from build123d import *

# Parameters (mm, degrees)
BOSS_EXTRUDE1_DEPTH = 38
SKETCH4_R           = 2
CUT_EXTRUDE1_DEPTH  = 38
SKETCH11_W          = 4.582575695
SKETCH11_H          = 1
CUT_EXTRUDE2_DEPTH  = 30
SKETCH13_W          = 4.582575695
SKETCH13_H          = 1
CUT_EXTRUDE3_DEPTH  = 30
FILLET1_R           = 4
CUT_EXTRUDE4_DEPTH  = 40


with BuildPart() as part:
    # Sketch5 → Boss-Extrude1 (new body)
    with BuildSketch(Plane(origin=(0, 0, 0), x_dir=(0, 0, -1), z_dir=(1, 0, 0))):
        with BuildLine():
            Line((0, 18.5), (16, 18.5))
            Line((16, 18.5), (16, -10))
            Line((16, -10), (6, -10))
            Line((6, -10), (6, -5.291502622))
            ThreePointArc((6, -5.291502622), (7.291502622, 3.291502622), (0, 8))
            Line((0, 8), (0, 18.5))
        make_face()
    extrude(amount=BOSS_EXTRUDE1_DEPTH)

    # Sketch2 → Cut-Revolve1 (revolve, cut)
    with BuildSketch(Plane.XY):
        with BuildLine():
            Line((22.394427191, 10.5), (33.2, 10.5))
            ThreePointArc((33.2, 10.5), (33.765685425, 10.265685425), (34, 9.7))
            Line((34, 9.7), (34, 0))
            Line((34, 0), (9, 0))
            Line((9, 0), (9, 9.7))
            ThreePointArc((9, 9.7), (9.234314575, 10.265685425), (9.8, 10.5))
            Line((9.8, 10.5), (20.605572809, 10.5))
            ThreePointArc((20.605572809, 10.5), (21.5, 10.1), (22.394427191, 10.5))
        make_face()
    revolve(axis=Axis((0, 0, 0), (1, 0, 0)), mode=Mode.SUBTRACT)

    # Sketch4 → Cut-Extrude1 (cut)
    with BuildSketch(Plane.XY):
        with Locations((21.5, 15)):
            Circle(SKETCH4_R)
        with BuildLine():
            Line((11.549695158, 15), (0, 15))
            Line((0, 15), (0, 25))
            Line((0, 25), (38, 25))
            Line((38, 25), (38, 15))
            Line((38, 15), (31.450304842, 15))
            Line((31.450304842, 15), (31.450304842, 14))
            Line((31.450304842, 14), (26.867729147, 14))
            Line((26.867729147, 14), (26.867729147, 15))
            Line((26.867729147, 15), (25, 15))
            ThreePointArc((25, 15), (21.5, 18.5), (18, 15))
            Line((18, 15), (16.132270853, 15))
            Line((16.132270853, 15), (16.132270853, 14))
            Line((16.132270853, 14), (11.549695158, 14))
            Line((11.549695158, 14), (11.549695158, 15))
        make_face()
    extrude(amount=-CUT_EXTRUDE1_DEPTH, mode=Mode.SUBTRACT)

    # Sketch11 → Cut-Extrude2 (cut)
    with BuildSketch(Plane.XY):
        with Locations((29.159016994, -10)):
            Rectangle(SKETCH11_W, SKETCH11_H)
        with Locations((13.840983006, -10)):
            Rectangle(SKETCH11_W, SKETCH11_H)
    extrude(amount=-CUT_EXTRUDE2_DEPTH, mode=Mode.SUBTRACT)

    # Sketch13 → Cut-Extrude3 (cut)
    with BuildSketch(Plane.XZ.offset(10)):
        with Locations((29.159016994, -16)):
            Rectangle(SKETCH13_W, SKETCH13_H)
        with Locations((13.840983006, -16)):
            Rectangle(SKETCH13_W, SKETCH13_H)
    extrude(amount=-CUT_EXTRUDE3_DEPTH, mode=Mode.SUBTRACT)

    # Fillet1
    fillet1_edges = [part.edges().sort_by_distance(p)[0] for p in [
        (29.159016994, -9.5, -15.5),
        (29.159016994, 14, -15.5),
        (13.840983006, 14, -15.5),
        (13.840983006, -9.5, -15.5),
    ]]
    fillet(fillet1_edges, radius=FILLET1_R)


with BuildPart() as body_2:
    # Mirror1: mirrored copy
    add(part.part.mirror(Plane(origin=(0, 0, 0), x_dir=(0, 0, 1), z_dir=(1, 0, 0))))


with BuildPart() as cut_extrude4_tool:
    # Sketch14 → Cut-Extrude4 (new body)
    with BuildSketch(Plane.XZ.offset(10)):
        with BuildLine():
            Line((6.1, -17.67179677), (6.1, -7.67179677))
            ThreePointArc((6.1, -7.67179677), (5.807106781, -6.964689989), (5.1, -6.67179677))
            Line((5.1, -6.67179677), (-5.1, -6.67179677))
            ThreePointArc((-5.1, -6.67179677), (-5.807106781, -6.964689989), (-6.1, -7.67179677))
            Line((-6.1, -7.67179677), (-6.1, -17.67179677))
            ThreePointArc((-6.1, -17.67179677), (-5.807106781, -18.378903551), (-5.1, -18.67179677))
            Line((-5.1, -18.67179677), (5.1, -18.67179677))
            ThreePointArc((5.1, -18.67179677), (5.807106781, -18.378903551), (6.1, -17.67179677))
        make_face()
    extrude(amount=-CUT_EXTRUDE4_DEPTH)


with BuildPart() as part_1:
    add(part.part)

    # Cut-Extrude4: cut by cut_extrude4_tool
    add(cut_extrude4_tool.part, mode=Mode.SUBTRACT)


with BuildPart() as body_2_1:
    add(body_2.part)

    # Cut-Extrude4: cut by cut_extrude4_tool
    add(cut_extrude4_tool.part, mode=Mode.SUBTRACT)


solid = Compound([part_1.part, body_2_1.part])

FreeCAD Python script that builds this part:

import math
import FreeCAD as App
import Part
import Sketcher

V = App.Vector
Q = App.Units.Quantity


def edges_at(feature, points):
    """Names of the edges that pass closest to the given points."""
    edges = feature.Shape.Edges
    near = lambda p: min(range(len(edges)), key=lambda i: edges[i].distToShape(Part.Vertex(*p))[0])
    return sorted({f"Edge{near(p) + 1}" for p in points})


def add_polygon(sketch, points):
    """Adds a closed chain of lines whose ends are joined by coincident constraints."""
    first, n = sketch.GeometryCount, len(points)
    for a, b in zip(points, points[1:] + points[:1]):
        sketch.addGeometry(Part.LineSegment(App.Vector(*a, 0), App.Vector(*b, 0)), False)
    for i in range(n):
        sketch.addConstraint(Sketcher.Constraint("Coincident", first + i, 2, first + (i + 1) % n, 1))

doc = App.newDocument("Part")
body = doc.addObject("PartDesign::Body", "Body")

# Sketch on YZ plane
sketch1 = body.newObject("Sketcher::SketchObject", "Sketch")
sketch1.AttachmentSupport = (doc.getObject("YZ_Plane"), [""])
sketch1.MapMode = "FlatFace"
sketch1.addGeometry(Part.LineSegment(V(18.5, -16, 0), V(18.5, 0, 0)), False)
sketch1.addGeometry(Part.LineSegment(V(18.5, 0, 0), V(8, 0, 0)), False)
sketch1.addGeometry(Part.ArcOfCircle(Part.Circle(V(0, 0, 0), V(0, 0, 1), 8), math.radians(-131), math.radians(0)), False)
sketch1.addGeometry(Part.LineSegment(V(-5.3, -6, 0), V(-10, -6, 0)), False)
sketch1.addGeometry(Part.LineSegment(V(-10, -6, 0), V(-10, -16, 0)), False)
sketch1.addGeometry(Part.LineSegment(V(-10, -16, 0), V(18.5, -16, 0)), False)
sketch1.addConstraint(Sketcher.Constraint("Coincident", 0, 2, 1, 1))
sketch1.addConstraint(Sketcher.Constraint("Coincident", 1, 2, 2, 2))
sketch1.addConstraint(Sketcher.Constraint("Coincident", 2, 1, 3, 1))
sketch1.addConstraint(Sketcher.Constraint("Coincident", 3, 2, 4, 1))
sketch1.addConstraint(Sketcher.Constraint("Coincident", 4, 2, 5, 1))
sketch1.addConstraint(Sketcher.Constraint("Coincident", 5, 2, 0, 1))
sketch1.addConstraint(Sketcher.Constraint("Vertical", 0))
sketch1.addConstraint(Sketcher.Constraint("Horizontal", 1))
sketch1.addConstraint(Sketcher.Constraint("Horizontal", 3))
sketch1.addConstraint(Sketcher.Constraint("Vertical", 4))
sketch1.addConstraint(Sketcher.Constraint("Horizontal", 5))
sketch1.addConstraint(Sketcher.Constraint("Coincident", 2, 3, -1, 1))
sketch1.addConstraint(Sketcher.Constraint("PointOnObject", 0, 2, -1))
sketch1.addConstraint(Sketcher.Constraint("Radius", 2, Q("8 mm")))
sketch1.addConstraint(Sketcher.Constraint("DistanceY", 0, 1, 0, 2, Q("16 mm")))
sketch1.addConstraint(Sketcher.Constraint("DistanceY", 4, 2, 4, 1, Q("10 mm")))
sketch1.addConstraint(Sketcher.Constraint("DistanceX", 1, 2, 1, 1, Q("10.5 mm")))
sketch1.addConstraint(Sketcher.Constraint("DistanceX", 5, 1, 5, 2, Q("28.5 mm")))
pad1 = body.newObject("PartDesign::Pad", "Pad")
pad1.Profile = sketch1
pad1.Length = 38

# Sketch on XY plane
sketch2 = body.newObject("Sketcher::SketchObject", "Sketch001")
sketch2.AttachmentSupport = (doc.getObject("XY_Plane"), [""])
sketch2.MapMode = "FlatFace"
sketch2.addGeometry(Part.LineSegment(V(33.2, 10.5, 0), V(22.4, 10.5, 0)), False)
sketch2.addGeometry(Part.ArcOfCircle(Part.Circle(V(21.5, 11.3, 0), V(0, 0, 1), 1.2), math.radians(-138), math.radians(-42)), False)
sketch2.addGeometry(Part.LineSegment(V(20.6, 10.5, 0), V(9.8, 10.5, 0)), False)
sketch2.addGeometry(Part.ArcOfCircle(Part.Circle(V(9.8, 9.7, 0), V(0, 0, 1), 0.8), math.radians(90), math.radians(180)), False)
sketch2.addGeometry(Part.LineSegment(V(9, 9.7, 0), V(9, 0, 0)), False)
sketch2.addGeometry(Part.LineSegment(V(9, 0, 0), V(34, 0, 0)), False)
sketch2.addGeometry(Part.LineSegment(V(34, 0, 0), V(34, 9.7, 0)), False)
sketch2.addGeometry(Part.ArcOfCircle(Part.Circle(V(33.2, 9.7, 0), V(0, 0, 1), 0.8), math.radians(0), math.radians(90)), False)
sketch2.addConstraint(Sketcher.Constraint("Coincident", 0, 2, 1, 2))
sketch2.addConstraint(Sketcher.Constraint("Coincident", 1, 1, 2, 1))
sketch2.addConstraint(Sketcher.Constraint("Tangent", 2, 2, 3, 1))
sketch2.addConstraint(Sketcher.Constraint("Tangent", 3, 2, 4, 1))
sketch2.addConstraint(Sketcher.Constraint("Coincident", 4, 2, 5, 1))
sketch2.addConstraint(Sketcher.Constraint("Coincident", 5, 2, 6, 1))
sketch2.addConstraint(Sketcher.Constraint("Tangent", 6, 2, 7, 1))
sketch2.addConstraint(Sketcher.Constraint("Tangent", 7, 2, 0, 1))
sketch2.addConstraint(Sketcher.Constraint("Horizontal", 0))
sketch2.addConstraint(Sketcher.Constraint("Horizontal", 2))
sketch2.addConstraint(Sketcher.Constraint("Vertical", 4))
sketch2.addConstraint(Sketcher.Constraint("Horizontal", 5))
sketch2.addConstraint(Sketcher.Constraint("Vertical", 6))
sketch2.addConstraint(Sketcher.Constraint("Equal", 3, 7))
sketch2.addConstraint(Sketcher.Constraint("PointOnObject", 4, 2, -1))
sketch2.addConstraint(Sketcher.Constraint("Horizontal", 3, 3, 7, 3))
sketch2.addConstraint(Sketcher.Constraint("Equal", 0, 2))
sketch2.addConstraint(Sketcher.Constraint("Radius", 1, Q("1.2 mm")))
sketch2.addConstraint(Sketcher.Constraint("Radius", 3, Q("0.8 mm")))
sketch2.addConstraint(Sketcher.Constraint("DistanceX", 5, 1, 5, 2, Q("25 mm")))
sketch2.addConstraint(Sketcher.Constraint("DistanceY", 4, 2, 4, 1, Q("9.7 mm")))
sketch2.addConstraint(Sketcher.Constraint("DistanceX", -1, 1, 3, 2, Q("9 mm")))
sketch2.addConstraint(Sketcher.Constraint("DistanceY", -1, 1, 1, 3, Q("11.3 mm")))
groove = body.newObject("PartDesign::Groove", "Groove")
groove.Profile = sketch2
groove.ReferenceAxis = (sketch2, ["H_Axis"])
groove.Angle = 360

# Sketch on XY plane
sketch3 = body.newObject("Sketcher::SketchObject", "Sketch002")
sketch3.AttachmentSupport = (doc.getObject("XY_Plane"), [""])
sketch3.MapMode = "FlatFace"
sketch3.addGeometry(Part.Circle(V(21.5, 15, 0), V(0, 0, 1), 2), False)
sketch3.addGeometry(Part.LineSegment(V(0, 15, 0), V(11.5, 15, 0)), False)
sketch3.addGeometry(Part.LineSegment(V(11.5, 15, 0), V(11.5, 14, 0)), False)
sketch3.addGeometry(Part.LineSegment(V(11.5, 14, 0), V(16.1, 14, 0)), False)
sketch3.addGeometry(Part.LineSegment(V(16.1, 14, 0), V(16.1, 15, 0)), False)
sketch3.addGeometry(Part.LineSegment(V(16.1, 15, 0), V(18, 15, 0)), False)
sketch3.addGeometry(Part.ArcOfCircle(Part.Circle(V(21.5, 15, 0), V(0, 0, 1), 3.5), math.radians(0), math.radians(180)), False)
sketch3.addGeometry(Part.LineSegment(V(25, 15, 0), V(26.9, 15, 0)), False)
sketch3.addGeometry(Part.LineSegment(V(26.9, 15, 0), V(26.9, 14, 0)), False)
sketch3.addGeometry(Part.LineSegment(V(26.9, 14, 0), V(31.5, 14, 0)), False)
sketch3.addGeometry(Part.LineSegment(V(31.5, 14, 0), V(31.5, 15, 0)), False)
sketch3.addGeometry(Part.LineSegment(V(31.5, 15, 0), V(38, 15, 0)), False)
sketch3.addGeometry(Part.LineSegment(V(38, 15, 0), V(38, 25, 0)), False)
sketch3.addGeometry(Part.LineSegment(V(38, 25, 0), V(0, 25, 0)), False)
sketch3.addGeometry(Part.LineSegment(V(0, 25, 0), V(0, 15, 0)), False)
sketch3.addConstraint(Sketcher.Constraint("Coincident", 1, 2, 2, 1))
sketch3.addConstraint(Sketcher.Constraint("Coincident", 2, 2, 3, 1))
sketch3.addConstraint(Sketcher.Constraint("Coincident", 3, 2, 4, 1))
sketch3.addConstraint(Sketcher.Constraint("Coincident", 4, 2, 5, 1))
sketch3.addConstraint(Sketcher.Constraint("Coincident", 5, 2, 6, 2))
sketch3.addConstraint(Sketcher.Constraint("Coincident", 6, 1, 7, 1))
sketch3.addConstraint(Sketcher.Constraint("Coincident", 7, 2, 8, 1))
sketch3.addConstraint(Sketcher.Constraint("Coincident", 8, 2, 9, 1))
sketch3.addConstraint(Sketcher.Constraint("Coincident", 9, 2, 10, 1))
sketch3.addConstraint(Sketcher.Constraint("Coincident", 10, 2, 11, 1))
sketch3.addConstraint(Sketcher.Constraint("Coincident", 11, 2, 12, 1))
sketch3.addConstraint(Sketcher.Constraint("Coincident", 12, 2, 13, 1))
sketch3.addConstraint(Sketcher.Constraint("Coincident", 13, 2, 14, 1))
sketch3.addConstraint(Sketcher.Constraint("Coincident", 14, 2, 1, 1))
sketch3.addConstraint(Sketcher.Constraint("Horizontal", 1))
sketch3.addConstraint(Sketcher.Constraint("Vertical", 2))
sketch3.addConstraint(Sketcher.Constraint("Horizontal", 3))
sketch3.addConstraint(Sketcher.Constraint("Vertical", 4))
sketch3.addConstraint(Sketcher.Constraint("Horizontal", 5))
sketch3.addConstraint(Sketcher.Constraint("Horizontal", 7))
sketch3.addConstraint(Sketcher.Constraint("Vertical", 8))
sketch3.addConstraint(Sketcher.Constraint("Horizontal", 9))
sketch3.addConstraint(Sketcher.Constraint("Vertical", 10))
sketch3.addConstraint(Sketcher.Constraint("Horizontal", 11))
sketch3.addConstraint(Sketcher.Constraint("Vertical", 12))
sketch3.addConstraint(Sketcher.Constraint("Horizontal", 13))
sketch3.addConstraint(Sketcher.Constraint("Vertical", 14))
sketch3.addConstraint(Sketcher.Constraint("Coincident", 6, 3, 0, 3))
sketch3.addConstraint(Sketcher.Constraint("PointOnObject", 13, 2, -2))
sketch3.addConstraint(Sketcher.Constraint("Horizontal", 6, 3, 1, 2))
sketch3.addConstraint(Sketcher.Constraint("Horizontal", 1, 2, 4, 2))
sketch3.addConstraint(Sketcher.Constraint("Horizontal", 5, 2, 6, 1))
sketch3.addConstraint(Sketcher.Constraint("Horizontal", 3, 2, 8, 2))
sketch3.addConstraint(Sketcher.Constraint("Horizontal", 7, 2, 10, 2))
sketch3.addConstraint(Sketcher.Constraint("Equal", 5, 7))
sketch3.addConstraint(Sketcher.Constraint("Equal", 3, 9))
sketch3.addConstraint(Sketcher.Constraint("Diameter", 0, Q("4 mm")))
sketch3.addConstraint(Sketcher.Constraint("Radius", 6, Q("3.5 mm")))
sketch3.addConstraint(Sketcher.Constraint("DistanceX", 13, 2, 13, 1, Q("38 mm")))
sketch3.addConstraint(Sketcher.Constraint("DistanceY", 2, 2, 2, 1, Q("1 mm")))
sketch3.addConstraint(Sketcher.Constraint("DistanceY", 12, 1, 12, 2, Q("10 mm")))
sketch3.addConstraint(Sketcher.Constraint("DistanceY", -1, 1, 0, 3, Q("15 mm")))
sketch3.addConstraint(Sketcher.Constraint("DistanceX", -1, 1, 5, 2, Q("18 mm")))
sketch3.addConstraint(Sketcher.Constraint("DistanceX", 5, 1, 5, 2, Q("1.867729 mm")))
sketch3.addConstraint(Sketcher.Constraint("DistanceX", 1, 1, 1, 2, Q("11.549695 mm")))
pocket1 = body.newObject("PartDesign::Pocket", "Pocket")
pocket1.Profile = sketch3
pocket1.Length = 38

# Sketch on XY plane
sketch4 = body.newObject("Sketcher::SketchObject", "Sketch003")
sketch4.AttachmentSupport = (doc.getObject("XY_Plane"), [""])
sketch4.MapMode = "FlatFace"
add_polygon(sketch4, [(26.9, -9.5), (26.9, -10.5), (31.5, -10.5), (31.5, -9.5)])  # lines 0-3
add_polygon(sketch4, [(11.5, -9.5), (11.5, -10.5), (16.1, -10.5), (16.1, -9.5)])  # lines 4-7
sketch4.addConstraint(Sketcher.Constraint("Vertical", 0))
sketch4.addConstraint(Sketcher.Constraint("Horizontal", 1))
sketch4.addConstraint(Sketcher.Constraint("Vertical", 2))
sketch4.addConstraint(Sketcher.Constraint("Horizontal", 3))
sketch4.addConstraint(Sketcher.Constraint("Vertical", 4))
sketch4.addConstraint(Sketcher.Constraint("Horizontal", 5))
sketch4.addConstraint(Sketcher.Constraint("Vertical", 6))
sketch4.addConstraint(Sketcher.Constraint("Horizontal", 7))
sketch4.addConstraint(Sketcher.Constraint("Horizontal", 1, 2, 4, 2))
sketch4.addConstraint(Sketcher.Constraint("Horizontal", 3, 2, 6, 2))
sketch4.addConstraint(Sketcher.Constraint("Equal", 3, 5))
sketch4.addConstraint(Sketcher.Constraint("DistanceY", 0, 2, 0, 1, Q("1 mm")))
sketch4.addConstraint(Sketcher.Constraint("DistanceY", 0, 2, -1, 1, Q("10.5 mm")))
sketch4.addConstraint(Sketcher.Constraint("DistanceX", 1, 1, 1, 2, Q("4.582576 mm")))
sketch4.addConstraint(Sketcher.Constraint("DistanceX", -1, 1, 0, 2, Q("26.867729 mm")))
sketch4.addConstraint(Sketcher.Constraint("DistanceX", -1, 1, 5, 2, Q("16.132271 mm")))
pocket2 = body.newObject("PartDesign::Pocket", "Pocket001")
pocket2.Profile = sketch4
pocket2.Length = 30

# Sketch on XZ plane
sketch5 = body.newObject("Sketcher::SketchObject", "Sketch004")
sketch5.AttachmentSupport = (doc.getObject("XZ_Plane"), [""])
sketch5.MapMode = "FlatFace"
sketch5.AttachmentOffset = App.Placement(V(0, 0, 10), App.Rotation())
add_polygon(sketch5, [(26.9, -15.5), (26.9, -16.5), (31.5, -16.5), (31.5, -15.5)])  # lines 0-3
add_polygon(sketch5, [(11.5, -15.5), (11.5, -16.5), (16.1, -16.5), (16.1, -15.5)])  # lines 4-7
sketch5.addConstraint(Sketcher.Constraint("Vertical", 0))
sketch5.addConstraint(Sketcher.Constraint("Horizontal", 1))
sketch5.addConstraint(Sketcher.Constraint("Vertical", 2))
sketch5.addConstraint(Sketcher.Constraint("Horizontal", 3))
sketch5.addConstraint(Sketcher.Constraint("Vertical", 4))
sketch5.addConstraint(Sketcher.Constraint("Horizontal", 5))
sketch5.addConstraint(Sketcher.Constraint("Vertical", 6))
sketch5.addConstraint(Sketcher.Constraint("Horizontal", 7))
sketch5.addConstraint(Sketcher.Constraint("Horizontal", 1, 2, 4, 2))
sketch5.addConstraint(Sketcher.Constraint("Horizontal", 3, 2, 6, 2))
sketch5.addConstraint(Sketcher.Constraint("Equal", 3, 5))
sketch5.addConstraint(Sketcher.Constraint("DistanceY", 0, 2, 0, 1, Q("1 mm")))
sketch5.addConstraint(Sketcher.Constraint("DistanceY", 0, 2, -1, 1, Q("16.5 mm")))
sketch5.addConstraint(Sketcher.Constraint("DistanceX", 1, 1, 1, 2, Q("4.582576 mm")))
sketch5.addConstraint(Sketcher.Constraint("DistanceX", -1, 1, 0, 2, Q("26.867729 mm")))
sketch5.addConstraint(Sketcher.Constraint("DistanceX", -1, 1, 5, 2, Q("16.132271 mm")))
pocket3 = body.newObject("PartDesign::Pocket", "Pocket002")
pocket3.Profile = sketch5
pocket3.Length = 30
doc.recompute()

fillet = body.newObject("PartDesign::Fillet", "Fillet")
fillet.Base = (pocket3, edges_at(pocket3, [
    (29.159, -9.5, -15.5),
    (29.159, 14, -15.5),
    (13.841, 14, -15.5),
    (13.841, -9.5, -15.5),
]))
fillet.Radius = 4
body2 = doc.addObject("PartDesign::Body", "Body001")
doc.recompute()

mirroring = doc.addObject("Part::Mirroring", "Mirroring")
mirroring.Source = body
mirroring.Base = V(0, 0, 0)
mirroring.Normal = V(1, 0, 0)
body2.BaseFeature = mirroring
doc.recompute()
body3 = doc.addObject("PartDesign::Body", "Body002")

# Sketch on XZ plane
sketch6 = body3.newObject("Sketcher::SketchObject", "Sketch005")
sketch6.AttachmentSupport = (doc.getObject("XZ_Plane002"), [""])
sketch6.MapMode = "FlatFace"
sketch6.AttachmentOffset = App.Placement(V(0, 0, 10), App.Rotation())
sketch6.addGeometry(Part.LineSegment(V(6.1, -17.7, 0), V(6.1, -7.7, 0)), False)
sketch6.addGeometry(Part.ArcOfCircle(Part.Circle(V(5.1, -7.7, 0), V(0, 0, 1), 1), math.radians(0), math.radians(90)), False)
sketch6.addGeometry(Part.LineSegment(V(5.1, -6.7, 0), V(-5.1, -6.7, 0)), False)
sketch6.addGeometry(Part.ArcOfCircle(Part.Circle(V(-5.1, -7.7, 0), V(0, 0, 1), 1), math.radians(90), math.radians(180)), False)
sketch6.addGeometry(Part.LineSegment(V(-6.1, -7.7, 0), V(-6.1, -17.7, 0)), False)
sketch6.addGeometry(Part.ArcOfCircle(Part.Circle(V(-5.1, -17.7, 0), V(0, 0, 1), 1), math.radians(-180), math.radians(-90)), False)
sketch6.addGeometry(Part.LineSegment(V(-5.1, -18.7, 0), V(5.1, -18.7, 0)), False)
sketch6.addGeometry(Part.ArcOfCircle(Part.Circle(V(5.1, -17.7, 0), V(0, 0, 1), 1), math.radians(-90), math.radians(0)), False)
sketch6.addConstraint(Sketcher.Constraint("Tangent", 0, 2, 1, 1))
sketch6.addConstraint(Sketcher.Constraint("Tangent", 1, 2, 2, 1))
sketch6.addConstraint(Sketcher.Constraint("Tangent", 2, 2, 3, 1))
sketch6.addConstraint(Sketcher.Constraint("Tangent", 3, 2, 4, 1))
sketch6.addConstraint(Sketcher.Constraint("Tangent", 4, 2, 5, 1))
sketch6.addConstraint(Sketcher.Constraint("Tangent", 5, 2, 6, 1))
sketch6.addConstraint(Sketcher.Constraint("Tangent", 6, 2, 7, 1))
sketch6.addConstraint(Sketcher.Constraint("Tangent", 7, 2, 0, 1))
sketch6.addConstraint(Sketcher.Constraint("Vertical", 0))
sketch6.addConstraint(Sketcher.Constraint("Horizontal", 2))
sketch6.addConstraint(Sketcher.Constraint("Vertical", 4))
sketch6.addConstraint(Sketcher.Constraint("Horizontal", 6))
sketch6.addConstraint(Sketcher.Constraint("Equal", 1, 3))
sketch6.addConstraint(Sketcher.Constraint("Equal", 3, 5))
sketch6.addConstraint(Sketcher.Constraint("Equal", 5, 7))
sketch6.addConstraint(Sketcher.Constraint("Radius", 1, Q("1 mm")))
sketch6.addConstraint(Sketcher.Constraint("DistanceY", 0, 1, 0, 2, Q("10 mm")))
sketch6.addConstraint(Sketcher.Constraint("DistanceX", 2, 2, 2, 1, Q("10.2 mm")))
sketch6.addConstraint(Sketcher.Constraint("DistanceX", -1, 1, 1, 3, Q("5.1 mm")))
sketch6.addConstraint(Sketcher.Constraint("DistanceY", 1, 3, -1, 1, Q("7.671797 mm")))
pad2 = body3.newObject("PartDesign::Pad", "Pad001")
pad2.Profile = sketch6
pad2.Length = 40
pad2.Reversed = True
doc.recompute()

body4 = doc.addObject("PartDesign::Body", "Body003")
body4.BaseFeature = body3
boolean = body.newObject("PartDesign::Boolean", "Boolean")
boolean.Type = "Cut"
boolean.addObjects([body4])
doc.recompute()

boolean2 = body2.newObject("PartDesign::Boolean", "Boolean001")
boolean2.Type = "Cut"
boolean2.addObjects([body3])
mirroring.Visibility = False

doc.recompute()
